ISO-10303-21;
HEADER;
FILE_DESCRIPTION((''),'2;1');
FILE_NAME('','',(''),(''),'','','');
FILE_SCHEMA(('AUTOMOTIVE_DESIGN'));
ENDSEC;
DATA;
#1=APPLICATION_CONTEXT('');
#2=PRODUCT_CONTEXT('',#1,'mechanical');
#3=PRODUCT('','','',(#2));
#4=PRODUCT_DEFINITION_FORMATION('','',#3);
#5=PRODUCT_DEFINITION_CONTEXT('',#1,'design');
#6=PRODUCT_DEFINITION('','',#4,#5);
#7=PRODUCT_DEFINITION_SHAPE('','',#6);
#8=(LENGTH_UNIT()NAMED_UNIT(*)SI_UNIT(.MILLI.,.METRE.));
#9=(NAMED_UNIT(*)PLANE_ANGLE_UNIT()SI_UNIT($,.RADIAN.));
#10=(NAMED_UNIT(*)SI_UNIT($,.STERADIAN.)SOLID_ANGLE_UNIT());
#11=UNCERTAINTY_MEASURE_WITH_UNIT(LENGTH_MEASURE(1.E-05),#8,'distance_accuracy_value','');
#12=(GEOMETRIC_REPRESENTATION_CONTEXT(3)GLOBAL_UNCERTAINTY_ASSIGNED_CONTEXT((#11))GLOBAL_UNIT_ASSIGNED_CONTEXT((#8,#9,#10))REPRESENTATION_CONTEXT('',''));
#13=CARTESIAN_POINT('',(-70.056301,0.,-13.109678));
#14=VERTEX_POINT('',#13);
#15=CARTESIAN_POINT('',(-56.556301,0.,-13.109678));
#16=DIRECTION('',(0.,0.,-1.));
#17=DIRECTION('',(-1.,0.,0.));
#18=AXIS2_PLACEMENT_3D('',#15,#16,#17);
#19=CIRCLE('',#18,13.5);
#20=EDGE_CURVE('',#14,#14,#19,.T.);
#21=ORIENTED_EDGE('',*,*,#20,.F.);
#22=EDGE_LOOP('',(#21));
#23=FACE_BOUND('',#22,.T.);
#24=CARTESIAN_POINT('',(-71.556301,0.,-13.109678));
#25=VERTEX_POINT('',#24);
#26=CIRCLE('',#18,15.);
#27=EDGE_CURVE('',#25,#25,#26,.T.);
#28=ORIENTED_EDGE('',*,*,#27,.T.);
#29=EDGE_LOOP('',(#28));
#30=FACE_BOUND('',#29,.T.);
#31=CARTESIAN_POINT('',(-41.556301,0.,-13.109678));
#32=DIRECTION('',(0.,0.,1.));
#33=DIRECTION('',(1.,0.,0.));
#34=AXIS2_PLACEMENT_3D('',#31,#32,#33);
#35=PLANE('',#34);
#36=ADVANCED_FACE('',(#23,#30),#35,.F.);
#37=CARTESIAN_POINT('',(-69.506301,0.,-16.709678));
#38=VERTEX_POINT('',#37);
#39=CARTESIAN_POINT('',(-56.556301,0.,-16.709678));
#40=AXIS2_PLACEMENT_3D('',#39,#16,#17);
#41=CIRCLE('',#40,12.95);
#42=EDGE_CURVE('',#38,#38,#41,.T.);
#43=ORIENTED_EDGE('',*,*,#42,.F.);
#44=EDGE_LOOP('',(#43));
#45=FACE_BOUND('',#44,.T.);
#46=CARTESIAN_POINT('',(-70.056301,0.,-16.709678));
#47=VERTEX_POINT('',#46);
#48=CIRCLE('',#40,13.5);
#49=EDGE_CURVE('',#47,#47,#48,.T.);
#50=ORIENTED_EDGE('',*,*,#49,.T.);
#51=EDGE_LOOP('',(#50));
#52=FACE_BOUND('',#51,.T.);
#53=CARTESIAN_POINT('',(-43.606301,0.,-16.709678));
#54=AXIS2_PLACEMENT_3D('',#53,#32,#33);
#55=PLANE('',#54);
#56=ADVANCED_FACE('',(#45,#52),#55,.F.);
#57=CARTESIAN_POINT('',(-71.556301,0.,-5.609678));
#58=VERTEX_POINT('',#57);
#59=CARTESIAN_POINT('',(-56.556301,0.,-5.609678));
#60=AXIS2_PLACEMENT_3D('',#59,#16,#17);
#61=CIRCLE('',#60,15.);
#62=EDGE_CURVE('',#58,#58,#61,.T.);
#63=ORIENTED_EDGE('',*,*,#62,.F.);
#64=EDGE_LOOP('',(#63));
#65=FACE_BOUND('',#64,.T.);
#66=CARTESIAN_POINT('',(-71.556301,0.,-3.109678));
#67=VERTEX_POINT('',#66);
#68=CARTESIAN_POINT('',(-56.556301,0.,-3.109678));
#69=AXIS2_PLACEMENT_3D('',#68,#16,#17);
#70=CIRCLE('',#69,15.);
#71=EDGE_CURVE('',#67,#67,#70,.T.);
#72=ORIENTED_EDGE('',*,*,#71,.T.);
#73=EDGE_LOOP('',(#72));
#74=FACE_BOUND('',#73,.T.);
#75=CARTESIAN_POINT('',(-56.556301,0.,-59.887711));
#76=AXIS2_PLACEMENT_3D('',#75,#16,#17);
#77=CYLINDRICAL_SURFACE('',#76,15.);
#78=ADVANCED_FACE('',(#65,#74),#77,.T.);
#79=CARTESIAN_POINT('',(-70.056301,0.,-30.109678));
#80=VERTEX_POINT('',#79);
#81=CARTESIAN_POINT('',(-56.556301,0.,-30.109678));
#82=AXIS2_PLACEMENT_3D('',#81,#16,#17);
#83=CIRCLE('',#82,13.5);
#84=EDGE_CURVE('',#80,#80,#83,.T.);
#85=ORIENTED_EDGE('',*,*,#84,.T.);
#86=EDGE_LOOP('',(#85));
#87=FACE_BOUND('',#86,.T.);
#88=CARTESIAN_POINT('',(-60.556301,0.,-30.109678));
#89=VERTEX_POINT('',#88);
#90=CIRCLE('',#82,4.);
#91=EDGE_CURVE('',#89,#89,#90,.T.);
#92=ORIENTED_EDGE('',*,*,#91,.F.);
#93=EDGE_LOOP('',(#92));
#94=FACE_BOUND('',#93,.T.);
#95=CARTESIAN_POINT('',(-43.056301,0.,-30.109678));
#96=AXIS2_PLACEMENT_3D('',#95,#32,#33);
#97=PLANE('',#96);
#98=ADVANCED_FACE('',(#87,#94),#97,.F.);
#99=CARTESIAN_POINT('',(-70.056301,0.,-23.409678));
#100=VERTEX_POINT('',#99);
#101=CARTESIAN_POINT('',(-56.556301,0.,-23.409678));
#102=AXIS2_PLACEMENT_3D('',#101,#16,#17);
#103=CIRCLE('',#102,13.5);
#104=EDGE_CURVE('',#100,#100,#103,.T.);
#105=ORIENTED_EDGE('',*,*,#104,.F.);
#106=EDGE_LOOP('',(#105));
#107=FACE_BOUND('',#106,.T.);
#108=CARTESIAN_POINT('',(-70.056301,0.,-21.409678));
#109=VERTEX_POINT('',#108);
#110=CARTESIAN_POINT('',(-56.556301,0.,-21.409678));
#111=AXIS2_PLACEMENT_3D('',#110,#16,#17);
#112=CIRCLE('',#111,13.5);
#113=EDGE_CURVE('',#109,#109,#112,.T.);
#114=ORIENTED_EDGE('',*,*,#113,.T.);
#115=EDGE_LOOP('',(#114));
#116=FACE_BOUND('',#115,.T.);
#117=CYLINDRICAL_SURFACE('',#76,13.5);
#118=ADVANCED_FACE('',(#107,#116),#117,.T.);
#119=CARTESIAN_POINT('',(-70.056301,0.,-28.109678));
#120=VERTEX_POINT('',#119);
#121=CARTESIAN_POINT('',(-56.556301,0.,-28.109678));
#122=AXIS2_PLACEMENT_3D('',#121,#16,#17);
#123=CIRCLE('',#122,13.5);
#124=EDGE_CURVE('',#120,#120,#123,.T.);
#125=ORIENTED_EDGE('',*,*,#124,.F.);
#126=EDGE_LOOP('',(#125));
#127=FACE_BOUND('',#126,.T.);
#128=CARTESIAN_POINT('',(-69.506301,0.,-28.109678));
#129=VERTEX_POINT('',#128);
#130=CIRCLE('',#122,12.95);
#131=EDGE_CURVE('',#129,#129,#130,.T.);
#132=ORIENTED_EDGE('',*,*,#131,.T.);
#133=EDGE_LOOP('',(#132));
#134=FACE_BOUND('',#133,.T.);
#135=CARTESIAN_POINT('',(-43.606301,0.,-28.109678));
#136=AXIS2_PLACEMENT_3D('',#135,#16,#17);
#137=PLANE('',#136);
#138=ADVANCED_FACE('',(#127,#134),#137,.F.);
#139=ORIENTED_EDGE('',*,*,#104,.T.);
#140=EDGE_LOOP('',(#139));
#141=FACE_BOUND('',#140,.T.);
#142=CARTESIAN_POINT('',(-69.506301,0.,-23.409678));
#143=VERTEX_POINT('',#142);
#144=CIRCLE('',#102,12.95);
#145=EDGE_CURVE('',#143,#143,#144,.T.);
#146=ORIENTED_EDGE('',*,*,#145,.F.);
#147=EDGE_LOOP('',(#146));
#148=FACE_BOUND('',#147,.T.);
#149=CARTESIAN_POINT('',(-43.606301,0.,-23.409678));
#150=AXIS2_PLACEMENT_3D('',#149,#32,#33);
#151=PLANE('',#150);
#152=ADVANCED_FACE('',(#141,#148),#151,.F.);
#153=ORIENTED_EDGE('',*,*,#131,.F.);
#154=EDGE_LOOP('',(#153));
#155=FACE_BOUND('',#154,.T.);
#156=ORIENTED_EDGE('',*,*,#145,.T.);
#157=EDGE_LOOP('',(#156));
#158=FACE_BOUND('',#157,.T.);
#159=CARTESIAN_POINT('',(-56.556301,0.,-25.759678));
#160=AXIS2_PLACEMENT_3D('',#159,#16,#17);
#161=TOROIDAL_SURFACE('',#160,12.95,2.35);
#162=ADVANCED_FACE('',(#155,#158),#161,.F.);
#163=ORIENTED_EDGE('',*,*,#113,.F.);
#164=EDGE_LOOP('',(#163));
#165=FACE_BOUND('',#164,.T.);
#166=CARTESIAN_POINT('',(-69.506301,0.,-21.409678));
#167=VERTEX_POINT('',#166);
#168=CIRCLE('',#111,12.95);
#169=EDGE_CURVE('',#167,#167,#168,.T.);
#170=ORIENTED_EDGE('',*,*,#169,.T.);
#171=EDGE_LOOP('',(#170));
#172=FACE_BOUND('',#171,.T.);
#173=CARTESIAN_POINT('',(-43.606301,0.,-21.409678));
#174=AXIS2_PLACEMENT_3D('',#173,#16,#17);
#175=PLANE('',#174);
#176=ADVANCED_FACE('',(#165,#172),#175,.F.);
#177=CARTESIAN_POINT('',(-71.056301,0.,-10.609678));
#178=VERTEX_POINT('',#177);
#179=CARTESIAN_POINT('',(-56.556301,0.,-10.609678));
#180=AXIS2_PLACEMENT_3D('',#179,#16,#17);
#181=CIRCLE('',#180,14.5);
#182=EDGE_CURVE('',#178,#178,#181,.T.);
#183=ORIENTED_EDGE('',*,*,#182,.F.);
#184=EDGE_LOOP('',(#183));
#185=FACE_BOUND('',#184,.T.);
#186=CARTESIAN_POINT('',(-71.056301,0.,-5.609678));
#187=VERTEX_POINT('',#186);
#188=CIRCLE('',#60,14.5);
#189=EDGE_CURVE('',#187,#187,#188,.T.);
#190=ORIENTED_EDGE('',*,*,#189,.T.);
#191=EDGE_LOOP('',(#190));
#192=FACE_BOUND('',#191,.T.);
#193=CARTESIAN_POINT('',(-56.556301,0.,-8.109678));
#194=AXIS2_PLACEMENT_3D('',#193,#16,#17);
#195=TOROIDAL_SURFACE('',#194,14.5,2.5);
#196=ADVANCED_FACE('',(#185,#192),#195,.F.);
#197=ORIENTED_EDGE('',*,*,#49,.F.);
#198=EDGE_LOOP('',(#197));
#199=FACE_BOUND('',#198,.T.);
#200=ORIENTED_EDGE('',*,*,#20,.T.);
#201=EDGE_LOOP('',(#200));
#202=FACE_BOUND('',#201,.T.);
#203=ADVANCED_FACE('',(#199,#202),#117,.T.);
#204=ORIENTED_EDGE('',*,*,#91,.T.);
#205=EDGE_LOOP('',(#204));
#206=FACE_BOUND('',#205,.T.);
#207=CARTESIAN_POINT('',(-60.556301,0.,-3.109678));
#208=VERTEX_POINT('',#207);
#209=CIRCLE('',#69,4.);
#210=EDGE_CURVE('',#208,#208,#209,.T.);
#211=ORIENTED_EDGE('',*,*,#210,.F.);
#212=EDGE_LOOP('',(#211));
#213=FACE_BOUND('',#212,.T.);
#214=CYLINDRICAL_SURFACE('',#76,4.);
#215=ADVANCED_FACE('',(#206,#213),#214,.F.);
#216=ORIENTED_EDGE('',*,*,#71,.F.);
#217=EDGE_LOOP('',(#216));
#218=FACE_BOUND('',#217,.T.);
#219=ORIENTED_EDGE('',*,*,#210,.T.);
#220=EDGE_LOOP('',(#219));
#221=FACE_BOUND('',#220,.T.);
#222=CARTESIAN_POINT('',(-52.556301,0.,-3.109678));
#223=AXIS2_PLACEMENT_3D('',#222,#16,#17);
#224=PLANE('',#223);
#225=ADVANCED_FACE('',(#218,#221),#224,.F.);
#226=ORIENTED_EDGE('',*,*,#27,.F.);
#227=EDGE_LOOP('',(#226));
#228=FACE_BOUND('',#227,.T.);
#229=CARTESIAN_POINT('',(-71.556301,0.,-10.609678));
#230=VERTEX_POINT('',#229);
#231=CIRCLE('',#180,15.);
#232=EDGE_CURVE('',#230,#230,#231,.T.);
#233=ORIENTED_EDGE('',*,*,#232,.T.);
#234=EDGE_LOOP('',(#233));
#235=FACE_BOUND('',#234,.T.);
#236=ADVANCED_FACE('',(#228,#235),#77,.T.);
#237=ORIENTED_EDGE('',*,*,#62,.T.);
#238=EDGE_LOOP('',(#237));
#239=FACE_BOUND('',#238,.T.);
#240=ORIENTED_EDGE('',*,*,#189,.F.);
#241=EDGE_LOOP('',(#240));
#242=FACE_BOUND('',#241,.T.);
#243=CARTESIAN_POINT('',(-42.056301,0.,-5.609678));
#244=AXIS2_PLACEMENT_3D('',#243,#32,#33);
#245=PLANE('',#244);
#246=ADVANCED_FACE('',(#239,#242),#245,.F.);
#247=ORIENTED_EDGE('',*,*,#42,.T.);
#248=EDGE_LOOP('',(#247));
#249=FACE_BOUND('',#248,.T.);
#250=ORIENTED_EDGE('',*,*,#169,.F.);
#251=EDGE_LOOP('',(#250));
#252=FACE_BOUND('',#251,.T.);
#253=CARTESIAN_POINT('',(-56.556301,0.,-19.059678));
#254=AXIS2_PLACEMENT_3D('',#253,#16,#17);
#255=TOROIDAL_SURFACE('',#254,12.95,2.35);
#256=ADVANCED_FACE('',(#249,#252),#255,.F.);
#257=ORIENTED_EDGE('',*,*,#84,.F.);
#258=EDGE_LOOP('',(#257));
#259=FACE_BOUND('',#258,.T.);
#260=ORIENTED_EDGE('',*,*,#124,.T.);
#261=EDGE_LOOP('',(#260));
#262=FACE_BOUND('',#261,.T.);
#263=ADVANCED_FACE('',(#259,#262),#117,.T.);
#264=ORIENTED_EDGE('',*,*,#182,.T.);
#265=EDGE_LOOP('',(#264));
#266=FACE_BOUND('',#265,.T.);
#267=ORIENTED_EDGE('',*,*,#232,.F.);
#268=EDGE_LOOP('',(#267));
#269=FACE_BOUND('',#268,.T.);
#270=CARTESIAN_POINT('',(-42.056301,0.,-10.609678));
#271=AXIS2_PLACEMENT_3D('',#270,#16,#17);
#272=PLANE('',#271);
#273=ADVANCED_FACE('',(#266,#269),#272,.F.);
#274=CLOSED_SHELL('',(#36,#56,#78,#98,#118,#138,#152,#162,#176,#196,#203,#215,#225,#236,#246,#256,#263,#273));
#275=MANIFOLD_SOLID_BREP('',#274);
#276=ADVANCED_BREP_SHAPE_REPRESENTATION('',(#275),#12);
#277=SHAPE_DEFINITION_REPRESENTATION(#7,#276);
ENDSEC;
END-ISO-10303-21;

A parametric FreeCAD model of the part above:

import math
import FreeCAD as App
import Part
import Sketcher
from FreeCAD import Vector

doc = App.newDocument("Part")
body = doc.addObject("PartDesign::Body", "Body")

sketch1 = body.newObject("Sketcher::SketchObject", "Sketch")
sketch1.AttachmentSupport = (doc.getObject("XZ_Plane"), [""])
sketch1.MapMode = "FlatFace"
sketch1.addGeometry([
    Part.LineSegment(Vector(-52.556301, -30.109678, 0), Vector(-52.556301, -3.109678, 0)),
    Part.LineSegment(Vector(-52.556301, -3.109678, 0), Vector(-41.556301, -3.109678, 0)),
    Part.LineSegment(Vector(-41.556301, -3.109678, 0), Vector(-41.556301, -5.609678, 0)),
    Part.LineSegment(Vector(-41.556301, -5.609678, 0), Vector(-42.056301, -5.609678, 0)),
    Part.ArcOfCircle(Part.Circle(Vector(-42.056301, -8.109678, 0), Vector(0, 0, 1), 2.5), math.radians(90), math.radians(270)),
    Part.LineSegment(Vector(-42.056301, -10.609678, 0), Vector(-41.556301, -10.609678, 0)),
    Part.LineSegment(Vector(-41.556301, -10.609678, 0), Vector(-41.556301, -13.109678, 0)),
    Part.LineSegment(Vector(-41.556301, -13.109678, 0), Vector(-43.056301, -13.109678, 0)),
    Part.LineSegment(Vector(-43.056301, -13.109678, 0), Vector(-43.056301, -16.709678, 0)),
    Part.LineSegment(Vector(-43.056301, -16.709678, 0), Vector(-43.606301, -16.709678, 0)),
    Part.ArcOfCircle(Part.Circle(Vector(-43.606301, -19.059678, 0), Vector(0, 0, 1), 2.35), math.radians(90), math.radians(270)),
    Part.LineSegment(Vector(-43.606301, -21.409678, 0), Vector(-43.056301, -21.409678, 0)),
    Part.LineSegment(Vector(-43.056301, -21.409678, 0), Vector(-43.056301, -23.409678, 0)),
    Part.LineSegment(Vector(-43.056301, -23.409678, 0), Vector(-43.606301, -23.409678, 0)),
    Part.ArcOfCircle(Part.Circle(Vector(-43.606301, -25.759678, 0), Vector(0, 0, 1), 2.35), math.radians(90), math.radians(270)),
    Part.LineSegment(Vector(-43.606301, -28.109678, 0), Vector(-43.056301, -28.109678, 0)),
    Part.LineSegment(Vector(-43.056301, -28.109678, 0), Vector(-43.056301, -30.109678, 0)),
    Part.LineSegment(Vector(-43.056301, -30.109678, 0), Vector(-52.556301, -30.109678, 0)),
], False)
sketch1.addGeometry(Part.LineSegment(Vector(-56.556301, -30.109678, 0), Vector(-56.556301, -3.109678, 0)), True)
sketch1.addConstraint([
    Sketcher.Constraint("Coincident", 0, 2, 1, 1),
    Sketcher.Constraint("Coincident", 1, 2, 2, 1),
    Sketcher.Constraint("Coincident", 2, 2, 3, 1),
    Sketcher.Constraint("Tangent", 3, 2, 4, 1),
    Sketcher.Constraint("Tangent", 4, 2, 5, 1),
    Sketcher.Constraint("Coincident", 5, 2, 6, 1),
    Sketcher.Constraint("Coincident", 6, 2, 7, 1),
    Sketcher.Constraint("Coincident", 7, 2, 8, 1),
    Sketcher.Constraint("Coincident", 8, 2, 9, 1),
    Sketcher.Constraint("Tangent", 9, 2, 10, 1),
    Sketcher.Constraint("Tangent", 10, 2, 11, 1),
    Sketcher.Constraint("Coincident", 11, 2, 12, 1),
    Sketcher.Constraint("Coincident", 12, 2, 13, 1),
    Sketcher.Constraint("Tangent", 13, 2, 14, 1),
    Sketcher.Constraint("Tangent", 14, 2, 15, 1),
    Sketcher.Constraint("Coincident", 15, 2, 16, 1),
    Sketcher.Constraint("Coincident", 16, 2, 17, 1),
    Sketcher.Constraint("Coincident", 17, 2, 0, 1),
    Sketcher.Constraint("Vertical", 0),
    Sketcher.Constraint("Horizontal", 1),
    Sketcher.Constraint("Vertical", 2),
    Sketcher.Constraint("Horizontal", 3),
    Sketcher.Constraint("Horizontal", 5),
    Sketcher.Constraint("Vertical", 6),
    Sketcher.Constraint("Horizontal", 7),
    Sketcher.Constraint("Vertical", 8),
    Sketcher.Constraint("Horizontal", 9),
    Sketcher.Constraint("Horizontal", 11),
    Sketcher.Constraint("Vertical", 12),
    Sketcher.Constraint("Horizontal", 13),
    Sketcher.Constraint("Horizontal", 15),
    Sketcher.Constraint("Vertical", 16),
    Sketcher.Constraint("Horizontal", 17),
    Sketcher.Constraint("Vertical", 18),
    Sketcher.Constraint("Equal", 10, 14),
    Sketcher.Constraint("Horizontal", 17, 2, 18, 1),
    Sketcher.Constraint("Horizontal", 1, 2, 18, 2),
    Sketcher.Constraint("Vertical", 10, 3, 14, 3),
    Sketcher.Constraint("Vertical", 2, 2, 5, 2),
    Sketcher.Constraint("Vertical", 8, 2, 11, 2),
    Sketcher.Constraint("Vertical", 12, 2, 15, 2),
    Sketcher.Constraint("Equal", 2, 6),
    Sketcher.Constraint("Equal", 12, 16),
    Sketcher.Constraint("Radius", 4, 2.5),
    Sketcher.Constraint("DistanceX", 1, 1, 1, 2, 11.0),
    Sketcher.Constraint("DistanceY", 0, 1, 0, 2, 27.0),
    Sketcher.Constraint("DistanceY", 12, 2, 12, 1, 2.0),
    Sketcher.Constraint("Radius", 10, 2.35),
    Sketcher.Constraint("DistanceX", 3, 2, 3, 1, 0.5),
    Sketcher.Constraint("DistanceX", 7, 2, 7, 1, 1.5),
    Sketcher.Constraint("DistanceY", 2, 2, 2, 1, 2.5),
    Sketcher.Constraint("DistanceX", 18, 1, 17, 2, 4.0),
    Sketcher.Constraint("DistanceX", 9, 2, 9, 1, 0.55),
    Sketcher.Constraint("DistanceX", 4, 3, -1, 1, 42.056301),
    Sketcher.Constraint("DistanceY", 4, 3, -1, 1, 8.109678),
])
revolution = body.newObject("PartDesign::Revolution", "Revolution")
revolution.Profile = sketch1
revolution.ReferenceAxis = (sketch1, ["Axis0"])
revolution.Angle = 360

doc.recompute()
